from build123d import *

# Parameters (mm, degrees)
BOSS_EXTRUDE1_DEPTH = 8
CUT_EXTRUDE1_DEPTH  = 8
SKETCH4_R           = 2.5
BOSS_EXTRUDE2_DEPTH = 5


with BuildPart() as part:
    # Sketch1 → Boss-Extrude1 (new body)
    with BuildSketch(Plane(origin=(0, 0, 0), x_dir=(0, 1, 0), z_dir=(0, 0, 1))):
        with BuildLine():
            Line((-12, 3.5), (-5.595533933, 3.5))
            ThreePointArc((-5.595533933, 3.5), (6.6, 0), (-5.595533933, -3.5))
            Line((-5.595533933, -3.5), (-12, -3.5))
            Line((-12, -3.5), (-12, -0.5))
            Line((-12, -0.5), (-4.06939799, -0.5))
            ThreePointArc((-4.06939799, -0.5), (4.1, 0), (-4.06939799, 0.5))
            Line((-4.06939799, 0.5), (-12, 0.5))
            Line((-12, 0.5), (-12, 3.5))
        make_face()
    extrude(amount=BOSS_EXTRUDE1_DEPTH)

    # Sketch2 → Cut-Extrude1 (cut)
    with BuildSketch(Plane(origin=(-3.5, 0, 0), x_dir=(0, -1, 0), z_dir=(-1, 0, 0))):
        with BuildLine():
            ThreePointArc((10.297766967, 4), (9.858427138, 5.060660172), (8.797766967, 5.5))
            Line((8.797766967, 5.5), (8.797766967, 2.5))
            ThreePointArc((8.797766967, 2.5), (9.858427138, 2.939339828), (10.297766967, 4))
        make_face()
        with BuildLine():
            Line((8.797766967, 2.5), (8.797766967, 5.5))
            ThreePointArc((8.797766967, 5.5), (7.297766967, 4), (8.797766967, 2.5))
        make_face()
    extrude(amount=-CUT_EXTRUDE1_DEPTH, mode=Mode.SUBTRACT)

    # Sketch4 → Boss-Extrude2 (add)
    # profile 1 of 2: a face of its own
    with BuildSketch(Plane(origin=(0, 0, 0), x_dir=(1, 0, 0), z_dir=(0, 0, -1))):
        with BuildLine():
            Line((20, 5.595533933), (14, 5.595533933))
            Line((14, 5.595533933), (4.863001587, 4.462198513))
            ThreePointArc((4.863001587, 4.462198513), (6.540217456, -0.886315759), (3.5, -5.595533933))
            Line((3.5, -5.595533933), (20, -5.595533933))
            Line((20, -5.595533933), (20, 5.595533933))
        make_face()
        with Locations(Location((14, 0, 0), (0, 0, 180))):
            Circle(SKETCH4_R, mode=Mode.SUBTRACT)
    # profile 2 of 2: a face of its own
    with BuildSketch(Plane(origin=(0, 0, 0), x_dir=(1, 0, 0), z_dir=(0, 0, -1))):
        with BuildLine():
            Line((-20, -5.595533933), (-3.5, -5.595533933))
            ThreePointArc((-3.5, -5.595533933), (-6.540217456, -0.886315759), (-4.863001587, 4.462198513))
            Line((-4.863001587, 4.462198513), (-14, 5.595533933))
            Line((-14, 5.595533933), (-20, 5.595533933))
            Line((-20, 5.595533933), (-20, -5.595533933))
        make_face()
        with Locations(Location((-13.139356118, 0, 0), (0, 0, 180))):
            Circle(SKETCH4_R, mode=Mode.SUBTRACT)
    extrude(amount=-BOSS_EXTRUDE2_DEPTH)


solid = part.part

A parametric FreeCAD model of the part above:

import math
import FreeCAD as App
import Part
import Sketcher
Q = App.Units.Quantity

doc = App.newDocument("Part")
params = doc.addObject("Spreadsheet::Sheet", "Params")
for row, (alias, value) in enumerate([
    ("sketch1_radius", "4.1 mm"),
    ("sketch1_radius2", "6.6 mm"),
    ("sketch1_width", "3 mm"),
    ("pad1_length", "8 mm"),
    ("sketch2_radius", "1.5 mm"),
    ("pocket1_length", "8 mm"),
    ("sketch3_diameter", "5 mm"),
    ("sketch3_radius", "6.6 mm"),
    ("sketch3_width", "6 mm"),
    ("sketch3_width2", "16.5 mm"),
    ("pad2_length", "5 mm"),
], start=1):
    params.set(f"A{row}", alias)
    params.set(f"B{row}", "=" + value)
    params.setAlias(f"B{row}", alias)

body = doc.addObject("PartDesign::Body", "Body")

# Sketch on XY plane
sketch1 = body.newObject("Sketcher::SketchObject", "Sketch")
sketch1.AttachmentSupport = (doc.getObject("XY_Plane"), [""])
sketch1.MapMode = "FlatFace"
sketch1.addGeometry([
    Part.LineSegment(App.Vector(-3.5, -5.6, 0), App.Vector(-3.5, -12, 0)),  # 0
    Part.LineSegment(App.Vector(-3.5, -12, 0), App.Vector(-0.5, -12, 0)),  # 1
    Part.LineSegment(App.Vector(-0.5, -12, 0), App.Vector(-0.5, -4.1, 0)),  # 2
    Part.ArcOfCircle(Part.Circle(App.Vector(0, 0, 0), App.Vector(0, 0, 1), 4.1), math.radians(-83), math.radians(263)),  # 3
    Part.LineSegment(App.Vector(0.5, -4.1, 0), App.Vector(0.5, -12, 0)),  # 4
    Part.LineSegment(App.Vector(0.5, -12, 0), App.Vector(3.5, -12, 0)),  # 5
    Part.LineSegment(App.Vector(3.5, -12, 0), App.Vector(3.5, -5.6, 0)),  # 6
    Part.ArcOfCircle(Part.Circle(App.Vector(0, 0, 0), App.Vector(0, 0, 1), 6.6), math.radians(-58), math.radians(238)),  # 7
], False)
sketch1.addConstraint([
    Sketcher.Constraint("Coincident", 0, 2, 1, 1),
    Sketcher.Constraint("Coincident", 1, 2, 2, 1),
    Sketcher.Constraint("Coincident", 2, 2, 3, 2),
    Sketcher.Constraint("Coincident", 3, 1, 4, 1),
    Sketcher.Constraint("Coincident", 4, 2, 5, 1),
    Sketcher.Constraint("Coincident", 5, 2, 6, 1),
    Sketcher.Constraint("Coincident", 6, 2, 7, 1),
    Sketcher.Constraint("Coincident", 7, 2, 0, 1),
    Sketcher.Constraint("Vertical", 0),
    Sketcher.Constraint("Horizontal", 1),
    Sketcher.Constraint("Vertical", 2),
    Sketcher.Constraint("Vertical", 4),
    Sketcher.Constraint("Horizontal", 5),
    Sketcher.Constraint("Vertical", 6),
    Sketcher.Constraint("Coincident", 3, 3, -1, 1),
    Sketcher.Constraint("Coincident", 7, 3, -1, 1),
    Sketcher.Constraint("Symmetric", 1, 2, 4, 2, -2),
    Sketcher.Constraint("Horizontal", 6, 2, 7, 2),
    Sketcher.Constraint("Radius", 3, Q("4.1 mm")),
    Sketcher.Constraint("Radius", 7, Q("6.6 mm")),
    Sketcher.Constraint("DistanceX", 1, 1, 1, 2, Q("3 mm")),
    Sketcher.Constraint("DistanceY", 0, 2, -1, 1, Q("12 mm")),
    Sketcher.Constraint("DistanceX", 2, 2, 3, 1, Q("1 mm")),
])
sketch1.setExpression("Constraints[18]", "Params.sketch1_radius")
sketch1.setExpression("Constraints[19]", "Params.sketch1_radius2")
sketch1.setExpression("Constraints[20]", "Params.sketch1_width")
pad1 = body.newObject("PartDesign::Pad", "Pad")
pad1.Profile = sketch1
pad1.setExpression("Length", "Params.pad1_length")

# Sketch on YZ plane
sketch2 = body.newObject("Sketcher::SketchObject", "Sketch001")
sketch2.AttachmentSupport = (doc.getObject("YZ_Plane"), [""])
sketch2.MapMode = "FlatFace"
sketch2.AttachmentOffset = App.Placement(App.Vector(0, 0, -3.5), App.Rotation())
sketch2.addGeometry([
    Part.ArcOfCircle(Part.Circle(App.Vector(-8.8, 4, 0), App.Vector(0, 0, 1), 1.5), math.radians(90), math.radians(180)),
    Part.ArcOfCircle(Part.Circle(App.Vector(-8.8, 4, 0), App.Vector(0, 0, 1), 1.5), math.radians(-90), math.radians(90)),
    Part.ArcOfCircle(Part.Circle(App.Vector(-8.8, 4, 0), App.Vector(0, 0, 1), 1.5), math.radians(-180), math.radians(-90)),
], False)
sketch2.addConstraint([
    Sketcher.Constraint("Tangent", 0, 1, 1, 2),
    Sketcher.Constraint("Tangent", 1, 1, 2, 2),
    Sketcher.Constraint("Tangent", 2, 1, 0, 2),
    Sketcher.Constraint("Horizontal", 1, 3, 2, 1),
    Sketcher.Constraint("Vertical", 2, 3, 0, 1),
    Sketcher.Constraint("Vertical", 0, 1, 1, 1),
    Sketcher.Constraint("Radius", 0, Q("1.5 mm")),
    Sketcher.Constraint("DistanceY", -1, 1, 0, 3, Q("4 mm")),
    Sketcher.Constraint("DistanceX", 0, 3, -1, 1, Q("8.797767 mm")),
])
sketch2.setExpression("Constraints[6]", "Params.sketch2_radius")
pocket1 = body.newObject("PartDesign::Pocket", "Pocket")
pocket1.Profile = sketch2
pocket1.setExpression("Length", "Params.pocket1_length")
pocket1.Reversed = True

# Sketch on XY plane
sketch3 = body.newObject("Sketcher::SketchObject", "Sketch002")
sketch3.AttachmentSupport = (doc.getObject("XY_Plane"), [""])
sketch3.MapMode = "FlatFace"
sketch3.addGeometry([
    Part.LineSegment(App.Vector(20, -5.6, 0), App.Vector(14, -5.6, 0)),  # 0
    Part.LineSegment(App.Vector(14, -5.6, 0), App.Vector(4.9, -4.5, 0)),  # 1
    Part.ArcOfCircle(Part.Circle(App.Vector(0, 0, 0), App.Vector(0, 0, 1), 6.6), math.radians(-43), math.radians(58)),  # 2
    Part.LineSegment(App.Vector(3.5, 5.6, 0), App.Vector(20, 5.6, 0)),  # 3
    Part.LineSegment(App.Vector(20, 5.6, 0), App.Vector(20, -5.6, 0)),  # 4
    Part.Circle(App.Vector(14, 0, 0), App.Vector(0, 0, 1), 2.5),  # 5
    Part.LineSegment(App.Vector(-20, 5.6, 0), App.Vector(-3.5, 5.6, 0)),  # 6
    Part.ArcOfCircle(Part.Circle(App.Vector(0, 0, 0), App.Vector(0, 0, 1), 6.6), math.radians(122), math.radians(223)),  # 7
    Part.LineSegment(App.Vector(-4.9, -4.5, 0), App.Vector(-14, -5.6, 0)),  # 8
    Part.LineSegment(App.Vector(-14, -5.6, 0), App.Vector(-20, -5.6, 0)),  # 9
    Part.LineSegment(App.Vector(-20, -5.6, 0), App.Vector(-20, 5.6, 0)),  # 10
    Part.Circle(App.Vector(-13.1, 0, 0), App.Vector(0, 0, 1), 2.5),  # 11
], False)
sketch3.addConstraint([
    Sketcher.Constraint("Coincident", 0, 2, 1, 1),
    Sketcher.Constraint("Coincident", 1, 2, 2, 1),
    Sketcher.Constraint("Coincident", 2, 2, 3, 1),
    Sketcher.Constraint("Coincident", 3, 2, 4, 1),
    Sketcher.Constraint("Coincident", 4, 2, 0, 1),
    Sketcher.Constraint("Coincident", 6, 2, 7, 1),
    Sketcher.Constraint("Coincident", 7, 2, 8, 1),
    Sketcher.Constraint("Coincident", 8, 2, 9, 1),
    Sketcher.Constraint("Coincident", 9, 2, 10, 1),
    Sketcher.Constraint("Coincident", 10, 2, 6, 1),
    Sketcher.Constraint("Horizontal", 0),
    Sketcher.Constraint("Horizontal", 3),
    Sketcher.Constraint("Vertical", 4),
    Sketcher.Constraint("Horizontal", 6),
    Sketcher.Constraint("Horizontal", 9),
    Sketcher.Constraint("Vertical", 10),
    Sketcher.Constraint("Coincident", 2, 3, -1, 1),
    Sketcher.Constraint("Coincident", 7, 3, -1, 1),
    Sketcher.Constraint("Equal", 2, 7),
    Sketcher.Constraint("Equal", 5, 11),
    Sketcher.Constraint("Symmetric", 3, 2, 9, 2, -1, 1),
    Sketcher.Constraint("Symmetric", 0, 2, 8, 2, -2),
    Sketcher.Constraint("PointOnObject", 5, 3, -1),
    Sketcher.Constraint("PointOnObject", 11, 3, -1),
    Sketcher.Constraint("Horizontal", 3, 2, 6, 2),
    Sketcher.Constraint("Horizontal", 1, 2, 7, 2),
    Sketcher.Constraint("Vertical", 5, 3, 0, 2),
    Sketcher.Constraint("Diameter", 5, Q("5 mm")),
    Sketcher.Constraint("Radius", 2, Q("6.6 mm")),
    Sketcher.Constraint("DistanceX", 0, 2, 0, 1, Q("6 mm")),
    Sketcher.Constraint("DistanceX", 3, 1, 3, 2, Q("16.5 mm")),
    Sketcher.Constraint("DistanceX", -1, 1, 5, 3, Q("14 mm")),
    Sketcher.Constraint("DistanceX", -1, 1, 1, 2, Q("4.863002 mm")),
    Sketcher.Constraint("DistanceX", 11, 3, -1, 1, Q("13.139356 mm")),
])
sketch3.setExpression("Constraints[27]", "Params.sketch3_diameter")
sketch3.setExpression("Constraints[28]", "Params.sketch3_radius")
sketch3.setExpression("Constraints[29]", "Params.sketch3_width")
sketch3.setExpression("Constraints[30]", "Params.sketch3_width2")
pad2 = body.newObject("PartDesign::Pad", "Pad001")
pad2.Profile = sketch3
pad2.setExpression("Length", "Params.pad2_length")

doc.recompute()
